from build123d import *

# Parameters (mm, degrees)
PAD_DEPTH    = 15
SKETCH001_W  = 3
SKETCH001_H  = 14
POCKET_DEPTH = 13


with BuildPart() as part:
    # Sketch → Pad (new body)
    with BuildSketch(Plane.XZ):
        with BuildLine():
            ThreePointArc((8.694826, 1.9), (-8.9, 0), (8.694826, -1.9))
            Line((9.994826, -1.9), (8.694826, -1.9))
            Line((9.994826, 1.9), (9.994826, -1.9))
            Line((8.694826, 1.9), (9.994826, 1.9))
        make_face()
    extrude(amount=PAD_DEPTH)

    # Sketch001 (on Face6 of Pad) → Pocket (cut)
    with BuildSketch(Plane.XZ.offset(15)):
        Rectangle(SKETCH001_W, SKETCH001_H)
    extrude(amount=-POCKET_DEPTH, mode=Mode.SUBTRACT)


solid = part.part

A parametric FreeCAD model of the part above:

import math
import FreeCAD as App
import Part
import Sketcher
Q = App.Units.Quantity


def add_polygon(sketch, points):
    """Adds a closed chain of lines whose ends are joined by coincident constraints."""
    first, n = sketch.GeometryCount, len(points)
    for a, b in zip(points, points[1:] + points[:1]):
        sketch.addGeometry(Part.LineSegment(App.Vector(*a, 0), App.Vector(*b, 0)), False)
    for i in range(n):
        sketch.addConstraint(Sketcher.Constraint("Coincident", first + i, 2, first + (i + 1) % n, 1))

doc = App.newDocument("Part")
body = doc.addObject("PartDesign::Body", "Body")

# Sketch on XZ plane
sketch1 = body.newObject("Sketcher::SketchObject", "Sketch")
sketch1.AttachmentSupport = (doc.getObject("XZ_Plane"), [""])
sketch1.MapMode = "FlatFace"
sketch1.addGeometry([
    Part.ArcOfCircle(Part.Circle(App.Vector(0, 0, 0), App.Vector(0, 0, 1), 8.9), math.radians(12.326552), math.radians(347.673448)),
    Part.LineSegment(App.Vector(8.694826, -1.9, 0), App.Vector(9.994826, -1.9, 0)),
    Part.LineSegment(App.Vector(9.994826, -1.9, 0), App.Vector(9.994826, 1.9, 0)),
    Part.LineSegment(App.Vector(9.994826, 1.9, 0), App.Vector(8.694826, 1.9, 0)),
], False)
sketch1.addConstraint([
    Sketcher.Constraint("Coincident", 0, 2, 1, 1),
    Sketcher.Constraint("Coincident", 1, 2, 2, 1),
    Sketcher.Constraint("Coincident", 2, 2, 3, 1),
    Sketcher.Constraint("Coincident", 3, 2, 0, 1),
    Sketcher.Constraint("Horizontal", 1),
    Sketcher.Constraint("Vertical", 2),
    Sketcher.Constraint("Horizontal", 3),
    Sketcher.Constraint("Coincident", 0, 3, -1, 1),
    Sketcher.Constraint("Vertical", 0, 2, 3, 2),
    Sketcher.Constraint("Radius", 0, Q("8.9 mm")),
    Sketcher.Constraint("DistanceX", 1, 1, 1, 2, Q("1.3 mm")),
    Sketcher.Constraint("DistanceY", 2, 1, 2, 2, Q("3.8 mm")),
])
pad1 = body.newObject("PartDesign::Pad", "Pad")
pad1.Profile = sketch1
pad1.Length = 15

# Sketch on XZ plane
sketch2 = body.newObject("Sketcher::SketchObject", "Sketch001")
sketch2.AttachmentSupport = (doc.getObject("XZ_Plane"), [""])
sketch2.MapMode = "FlatFace"
sketch2.AttachmentOffset = App.Placement(App.Vector(0, 0, 15), App.Rotation())
add_polygon(sketch2, [(-1.5, 7), (-1.5, -7), (1.5, -7), (1.5, 7)])  # lines 0-3
sketch2.addConstraint([
    Sketcher.Constraint("Vertical", 0),
    Sketcher.Constraint("Horizontal", 1),
    Sketcher.Constraint("Vertical", 2),
    Sketcher.Constraint("Horizontal", 3),
    Sketcher.Constraint("Symmetric", 0, 2, 2, 2, -1, 1),
    Sketcher.Constraint("DistanceX", 1, 1, 1, 2, Q("3 mm")),
    Sketcher.Constraint("DistanceY", 0, 2, 0, 1, Q("14 mm")),
])
pocket1 = body.newObject("PartDesign::Pocket", "Pocket")
pocket1.Profile = sketch2
pocket1.Length = 13

doc.recompute()
